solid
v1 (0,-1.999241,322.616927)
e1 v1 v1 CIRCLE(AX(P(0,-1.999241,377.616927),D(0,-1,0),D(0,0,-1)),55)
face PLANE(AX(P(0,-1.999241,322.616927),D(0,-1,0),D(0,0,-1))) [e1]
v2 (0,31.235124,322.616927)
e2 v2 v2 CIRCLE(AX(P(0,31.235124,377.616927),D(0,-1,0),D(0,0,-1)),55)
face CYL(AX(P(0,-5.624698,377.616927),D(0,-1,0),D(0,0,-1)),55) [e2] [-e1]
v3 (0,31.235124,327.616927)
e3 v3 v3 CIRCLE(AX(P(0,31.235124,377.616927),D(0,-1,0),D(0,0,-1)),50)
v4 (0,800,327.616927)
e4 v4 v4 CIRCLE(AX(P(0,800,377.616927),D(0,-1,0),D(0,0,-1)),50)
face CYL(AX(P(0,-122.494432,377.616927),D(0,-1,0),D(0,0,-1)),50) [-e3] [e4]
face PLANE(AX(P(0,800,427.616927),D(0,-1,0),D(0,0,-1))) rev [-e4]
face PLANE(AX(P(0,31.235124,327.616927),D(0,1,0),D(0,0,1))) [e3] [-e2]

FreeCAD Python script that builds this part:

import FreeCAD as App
import Part
import Sketcher

V = App.Vector
Q = App.Units.Quantity

doc = App.newDocument("Part")
body = doc.addObject("PartDesign::Body", "Body")

# Sketch on YZ plane
sketch1 = body.newObject("Sketcher::SketchObject", "Sketch")
sketch1.AttachmentSupport = (doc.getObject("YZ_Plane"), [""])
sketch1.MapMode = "FlatFace"
sketch1.addGeometry([
    Part.LineSegment(V(800, 428, 0), V(0, 428, 0)),
    Part.LineSegment(V(0, 428, 0), V(0, 378, 0)),
    Part.LineSegment(V(0, 378, 0), V(800, 378, 0)),
    Part.LineSegment(V(800, 378, 0), V(800, 428, 0)),
], False)
sketch1.addGeometry(Part.LineSegment(V(0, 378, 0), V(800, 378, 0)), True)  # axis
sketch1.addConstraint([
    Sketcher.Constraint("Coincident", 0, 2, 1, 1),
    Sketcher.Constraint("Coincident", 1, 2, 2, 1),
    Sketcher.Constraint("Coincident", 2, 2, 3, 1),
    Sketcher.Constraint("Coincident", 3, 2, 0, 1),
    Sketcher.Constraint("Horizontal", 0),
    Sketcher.Constraint("Vertical", 1),
    Sketcher.Constraint("Horizontal", 2),
    Sketcher.Constraint("Vertical", 3),
    Sketcher.Constraint("Horizontal", 4),
    Sketcher.Constraint("Coincident", 4, 1, 1, 2),
    Sketcher.Constraint("PointOnObject", 0, 2, -2),
    Sketcher.Constraint("Vertical", 3, 2, 4, 2),
    Sketcher.Constraint("DistanceX", 0, 2, 0, 1, Q("800 mm")),
    Sketcher.Constraint("DistanceY", 1, 2, 1, 1, Q("50 mm")),
    Sketcher.Constraint("DistanceY", -1, 1, 0, 2, Q("427.616927 mm")),
])
revolution = body.newObject("PartDesign::Revolution", "Revolution")
revolution.Profile = sketch1
revolution.ReferenceAxis = (sketch1, ["Axis0"])
revolution.Angle = 360

# Sketch on YZ plane
sketch2 = body.newObject("Sketcher::SketchObject", "Sketch001")
sketch2.AttachmentSupport = (doc.getObject("YZ_Plane"), [""])
sketch2.MapMode = "FlatFace"
sketch2.addGeometry([
    Part.LineSegment(V(31.2, 322.6, 0), V(31.2, 327.6, 0)),  # 0
    Part.LineSegment(V(31.2, 327.6, 0), V(0, 327.6, 0)),  # 1
    Part.LineSegment(V(0, 327.6, 0), V(0, 377.6, 0)),  # 2
    Part.LineSegment(V(0, 377.6, 0), V(-2, 377.6, 0)),  # 3
    Part.LineSegment(V(-2, 377.6, 0), V(-2, 322.6, 0)),  # 4
    Part.LineSegment(V(-2, 322.6, 0), V(31.2, 322.6, 0)),  # 5
], False)
sketch2.addGeometry(Part.LineSegment(V(-2, 377.6, 0), V(31.2, 377.6, 0)), True)  # axis
sketch2.addConstraint([
    Sketcher.Constraint("Coincident", 0, 2, 1, 1),
    Sketcher.Constraint("Coincident", 1, 2, 2, 1),
    Sketcher.Constraint("Coincident", 2, 2, 3, 1),
    Sketcher.Constraint("Coincident", 3, 2, 4, 1),
    Sketcher.Constraint("Coincident", 4, 2, 5, 1),
    Sketcher.Constraint("Coincident", 5, 2, 0, 1),
    Sketcher.Constraint("Vertical", 0),
    Sketcher.Constraint("Horizontal", 1),
    Sketcher.Constraint("Vertical", 2),
    Sketcher.Constraint("Horizontal", 3),
    Sketcher.Constraint("Vertical", 4),
    Sketcher.Constraint("Horizontal", 5),
    Sketcher.Constraint("Horizontal", 6),
    Sketcher.Constraint("Coincident", 6, 1, 3, 2),
    Sketcher.Constraint("PointOnObject", 1, 2, -2),
    Sketcher.Constraint("Vertical", 5, 2, 6, 2),
    Sketcher.Constraint("DistanceY", 0, 1, 0, 2, Q("5 mm")),
    Sketcher.Constraint("DistanceY", 2, 1, 2, 2, Q("50 mm")),
    Sketcher.Constraint("DistanceX", 3, 2, 3, 1, Q("1.999241 mm")),
    Sketcher.Constraint("DistanceX", 1, 2, 1, 1, Q("31.235124 mm")),
    Sketcher.Constraint("DistanceY", -1, 1, 0, 2, Q("327.616927 mm")),
])
revolution2 = body.newObject("PartDesign::Revolution", "Revolution001")
revolution2.Profile = sketch2
revolution2.ReferenceAxis = (sketch2, ["Axis0"])
revolution2.Angle = 360

doc.recompute()
